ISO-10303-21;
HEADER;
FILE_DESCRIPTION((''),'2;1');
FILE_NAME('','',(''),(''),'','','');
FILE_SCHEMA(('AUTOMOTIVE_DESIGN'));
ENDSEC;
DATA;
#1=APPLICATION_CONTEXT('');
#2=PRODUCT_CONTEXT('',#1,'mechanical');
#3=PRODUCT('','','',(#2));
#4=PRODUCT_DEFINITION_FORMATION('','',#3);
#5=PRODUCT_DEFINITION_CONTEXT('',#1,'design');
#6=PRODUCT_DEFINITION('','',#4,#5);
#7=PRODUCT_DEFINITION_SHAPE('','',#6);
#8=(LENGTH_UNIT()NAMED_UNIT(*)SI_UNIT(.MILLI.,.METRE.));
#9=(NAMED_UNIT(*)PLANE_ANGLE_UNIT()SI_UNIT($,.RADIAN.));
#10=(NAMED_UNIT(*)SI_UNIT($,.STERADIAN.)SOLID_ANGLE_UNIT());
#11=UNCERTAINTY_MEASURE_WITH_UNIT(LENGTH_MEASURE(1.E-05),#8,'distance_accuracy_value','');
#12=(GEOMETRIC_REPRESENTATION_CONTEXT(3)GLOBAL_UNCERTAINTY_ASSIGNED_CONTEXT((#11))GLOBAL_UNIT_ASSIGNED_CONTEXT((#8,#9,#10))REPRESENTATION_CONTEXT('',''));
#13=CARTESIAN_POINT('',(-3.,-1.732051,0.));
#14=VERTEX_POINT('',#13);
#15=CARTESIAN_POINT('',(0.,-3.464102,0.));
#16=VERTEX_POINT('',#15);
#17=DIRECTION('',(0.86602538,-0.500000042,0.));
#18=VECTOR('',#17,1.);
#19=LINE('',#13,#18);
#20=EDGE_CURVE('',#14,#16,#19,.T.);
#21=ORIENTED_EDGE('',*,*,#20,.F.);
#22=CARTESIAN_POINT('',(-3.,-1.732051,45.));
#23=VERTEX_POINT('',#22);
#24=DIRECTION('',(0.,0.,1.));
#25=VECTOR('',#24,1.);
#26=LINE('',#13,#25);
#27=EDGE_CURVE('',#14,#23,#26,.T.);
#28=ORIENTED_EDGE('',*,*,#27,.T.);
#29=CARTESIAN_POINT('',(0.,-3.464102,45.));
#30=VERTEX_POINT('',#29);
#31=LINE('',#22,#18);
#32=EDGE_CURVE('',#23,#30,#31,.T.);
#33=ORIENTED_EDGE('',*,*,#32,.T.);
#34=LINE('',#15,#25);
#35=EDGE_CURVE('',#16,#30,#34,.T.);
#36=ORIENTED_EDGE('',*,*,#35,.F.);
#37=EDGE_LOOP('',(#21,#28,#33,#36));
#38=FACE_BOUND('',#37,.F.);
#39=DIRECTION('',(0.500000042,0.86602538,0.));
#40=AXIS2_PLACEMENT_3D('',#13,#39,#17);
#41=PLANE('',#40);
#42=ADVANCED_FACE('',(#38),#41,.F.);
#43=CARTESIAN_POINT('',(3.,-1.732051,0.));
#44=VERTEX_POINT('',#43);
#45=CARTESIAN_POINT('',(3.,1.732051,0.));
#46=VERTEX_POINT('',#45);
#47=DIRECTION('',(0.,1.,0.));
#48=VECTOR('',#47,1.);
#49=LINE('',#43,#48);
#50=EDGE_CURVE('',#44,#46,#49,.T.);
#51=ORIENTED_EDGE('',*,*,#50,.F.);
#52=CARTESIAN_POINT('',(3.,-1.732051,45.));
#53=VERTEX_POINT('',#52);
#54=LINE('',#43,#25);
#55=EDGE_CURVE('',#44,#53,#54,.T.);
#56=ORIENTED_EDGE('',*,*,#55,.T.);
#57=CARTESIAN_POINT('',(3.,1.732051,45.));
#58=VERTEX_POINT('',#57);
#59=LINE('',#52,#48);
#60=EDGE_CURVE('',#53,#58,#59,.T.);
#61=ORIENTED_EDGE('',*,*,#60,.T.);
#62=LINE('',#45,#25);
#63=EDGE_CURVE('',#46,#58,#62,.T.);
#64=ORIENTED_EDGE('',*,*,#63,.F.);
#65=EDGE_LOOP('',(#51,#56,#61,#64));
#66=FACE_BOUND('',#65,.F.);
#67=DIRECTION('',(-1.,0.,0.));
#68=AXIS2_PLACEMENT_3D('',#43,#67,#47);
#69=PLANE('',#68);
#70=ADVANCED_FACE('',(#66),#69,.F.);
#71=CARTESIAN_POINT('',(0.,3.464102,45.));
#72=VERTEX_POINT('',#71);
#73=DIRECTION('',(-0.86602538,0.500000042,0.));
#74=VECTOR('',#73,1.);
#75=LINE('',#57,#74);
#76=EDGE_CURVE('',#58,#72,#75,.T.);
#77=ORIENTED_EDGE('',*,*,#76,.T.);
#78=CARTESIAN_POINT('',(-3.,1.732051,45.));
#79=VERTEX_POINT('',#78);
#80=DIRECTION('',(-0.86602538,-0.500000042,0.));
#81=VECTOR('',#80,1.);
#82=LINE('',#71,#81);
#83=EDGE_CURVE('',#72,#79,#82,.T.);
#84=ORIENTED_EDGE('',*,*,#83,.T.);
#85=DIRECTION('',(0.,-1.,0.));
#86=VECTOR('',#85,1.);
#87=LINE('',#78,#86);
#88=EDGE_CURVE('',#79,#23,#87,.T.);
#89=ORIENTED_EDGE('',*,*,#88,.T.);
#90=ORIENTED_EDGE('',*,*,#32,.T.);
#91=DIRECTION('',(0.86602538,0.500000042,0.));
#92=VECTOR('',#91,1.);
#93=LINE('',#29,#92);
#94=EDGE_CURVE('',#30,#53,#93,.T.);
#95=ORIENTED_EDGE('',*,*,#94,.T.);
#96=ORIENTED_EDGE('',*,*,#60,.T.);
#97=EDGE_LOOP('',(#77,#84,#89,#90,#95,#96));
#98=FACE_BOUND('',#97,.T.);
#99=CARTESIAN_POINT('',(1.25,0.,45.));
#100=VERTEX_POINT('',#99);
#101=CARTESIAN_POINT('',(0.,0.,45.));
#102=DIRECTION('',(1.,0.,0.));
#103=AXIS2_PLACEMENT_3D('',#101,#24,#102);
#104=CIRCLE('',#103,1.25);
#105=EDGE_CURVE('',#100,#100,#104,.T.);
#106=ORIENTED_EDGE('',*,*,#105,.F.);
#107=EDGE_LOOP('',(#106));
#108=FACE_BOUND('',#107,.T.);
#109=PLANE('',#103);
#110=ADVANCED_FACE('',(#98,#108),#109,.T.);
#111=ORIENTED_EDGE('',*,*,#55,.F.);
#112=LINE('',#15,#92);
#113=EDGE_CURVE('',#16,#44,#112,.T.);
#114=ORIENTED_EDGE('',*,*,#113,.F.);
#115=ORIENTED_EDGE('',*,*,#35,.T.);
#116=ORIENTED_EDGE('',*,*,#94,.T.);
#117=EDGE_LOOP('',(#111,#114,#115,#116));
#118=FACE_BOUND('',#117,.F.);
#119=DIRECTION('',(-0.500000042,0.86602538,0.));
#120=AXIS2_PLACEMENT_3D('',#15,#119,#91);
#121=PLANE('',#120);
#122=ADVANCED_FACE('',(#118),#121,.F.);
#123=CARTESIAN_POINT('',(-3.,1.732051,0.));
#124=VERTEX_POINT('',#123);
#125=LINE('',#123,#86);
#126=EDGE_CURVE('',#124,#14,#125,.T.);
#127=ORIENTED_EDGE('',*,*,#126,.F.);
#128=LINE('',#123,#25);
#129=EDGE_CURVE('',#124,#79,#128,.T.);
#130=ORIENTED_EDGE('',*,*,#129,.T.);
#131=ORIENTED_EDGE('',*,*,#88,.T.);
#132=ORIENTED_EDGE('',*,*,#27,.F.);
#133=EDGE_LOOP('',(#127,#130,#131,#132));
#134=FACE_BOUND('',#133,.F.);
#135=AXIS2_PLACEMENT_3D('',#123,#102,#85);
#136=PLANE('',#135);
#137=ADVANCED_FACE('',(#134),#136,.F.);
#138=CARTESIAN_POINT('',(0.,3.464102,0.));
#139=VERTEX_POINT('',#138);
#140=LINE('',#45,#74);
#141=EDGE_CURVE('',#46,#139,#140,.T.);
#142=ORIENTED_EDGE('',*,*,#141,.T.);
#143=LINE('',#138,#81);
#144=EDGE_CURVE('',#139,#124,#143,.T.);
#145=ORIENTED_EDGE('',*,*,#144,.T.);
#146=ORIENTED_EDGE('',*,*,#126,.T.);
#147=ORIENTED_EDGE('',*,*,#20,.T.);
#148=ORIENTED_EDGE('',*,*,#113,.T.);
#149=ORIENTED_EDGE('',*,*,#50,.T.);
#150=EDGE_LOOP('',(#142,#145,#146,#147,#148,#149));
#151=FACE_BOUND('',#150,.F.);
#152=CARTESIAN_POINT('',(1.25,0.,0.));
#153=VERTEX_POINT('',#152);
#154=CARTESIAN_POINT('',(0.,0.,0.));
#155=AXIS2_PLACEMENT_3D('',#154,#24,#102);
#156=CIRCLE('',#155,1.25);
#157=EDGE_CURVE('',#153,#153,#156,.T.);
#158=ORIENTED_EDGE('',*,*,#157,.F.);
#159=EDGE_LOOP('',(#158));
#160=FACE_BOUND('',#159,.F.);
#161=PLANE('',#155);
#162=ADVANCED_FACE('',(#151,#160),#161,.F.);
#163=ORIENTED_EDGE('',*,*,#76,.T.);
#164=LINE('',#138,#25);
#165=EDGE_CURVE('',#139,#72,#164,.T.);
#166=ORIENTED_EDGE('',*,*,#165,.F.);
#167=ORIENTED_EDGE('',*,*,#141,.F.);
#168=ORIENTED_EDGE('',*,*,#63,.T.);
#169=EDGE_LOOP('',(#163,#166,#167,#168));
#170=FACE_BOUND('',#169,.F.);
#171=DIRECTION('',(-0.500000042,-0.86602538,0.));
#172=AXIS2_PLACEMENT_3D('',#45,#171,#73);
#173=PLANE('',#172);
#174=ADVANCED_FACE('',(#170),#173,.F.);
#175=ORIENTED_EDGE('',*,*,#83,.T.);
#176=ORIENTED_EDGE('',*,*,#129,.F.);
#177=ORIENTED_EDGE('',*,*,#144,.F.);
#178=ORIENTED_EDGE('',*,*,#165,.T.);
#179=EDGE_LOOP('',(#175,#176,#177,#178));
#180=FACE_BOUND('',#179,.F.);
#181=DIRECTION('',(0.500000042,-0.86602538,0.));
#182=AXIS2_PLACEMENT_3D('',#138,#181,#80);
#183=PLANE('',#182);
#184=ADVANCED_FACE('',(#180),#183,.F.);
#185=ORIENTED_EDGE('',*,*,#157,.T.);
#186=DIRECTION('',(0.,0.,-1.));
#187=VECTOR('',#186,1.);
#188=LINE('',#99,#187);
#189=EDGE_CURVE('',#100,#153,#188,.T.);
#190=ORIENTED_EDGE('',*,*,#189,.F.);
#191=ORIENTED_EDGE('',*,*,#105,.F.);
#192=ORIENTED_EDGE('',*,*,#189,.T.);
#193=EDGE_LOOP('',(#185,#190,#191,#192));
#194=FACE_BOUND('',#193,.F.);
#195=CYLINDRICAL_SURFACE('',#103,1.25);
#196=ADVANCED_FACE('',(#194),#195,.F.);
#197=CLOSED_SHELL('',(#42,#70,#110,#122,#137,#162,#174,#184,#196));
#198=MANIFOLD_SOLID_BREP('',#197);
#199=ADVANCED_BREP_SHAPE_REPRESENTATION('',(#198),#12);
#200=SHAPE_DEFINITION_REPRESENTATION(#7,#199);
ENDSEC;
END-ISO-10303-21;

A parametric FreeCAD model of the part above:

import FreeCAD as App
import Part
import Sketcher
Q = App.Units.Quantity

doc = App.newDocument("Part")
body = doc.addObject("PartDesign::Body", "Body")

sketch1 = body.newObject("Sketcher::SketchObject", "Sketch")
sketch1.AttachmentSupport = (doc.getObject("XY_Plane"), [""])
sketch1.MapMode = "FlatFace"
sketch1.addGeometry([
    Part.LineSegment(App.Vector(-3, -1.732051, 0), App.Vector(0, -3.464102, 0)),
    Part.LineSegment(App.Vector(0, -3.464102, 0), App.Vector(3, -1.732051, 0)),
    Part.LineSegment(App.Vector(3, -1.732051, 0), App.Vector(3, 1.732051, 0)),
    Part.LineSegment(App.Vector(3, 1.732051, 0), App.Vector(0, 3.464102, 0)),
    Part.LineSegment(App.Vector(0, 3.464102, 0), App.Vector(-3, 1.732051, 0)),
    Part.LineSegment(App.Vector(-3, 1.732051, 0), App.Vector(-3, -1.732051, 0)),
], False)
sketch1.addConstraint([
    Sketcher.Constraint("Coincident", 0, 2, 1, 1),
    Sketcher.Constraint("Coincident", 1, 2, 2, 1),
    Sketcher.Constraint("Coincident", 2, 2, 3, 1),
    Sketcher.Constraint("Coincident", 3, 2, 4, 1),
    Sketcher.Constraint("Coincident", 4, 2, 5, 1),
    Sketcher.Constraint("Coincident", 5, 2, 0, 1),
    Sketcher.Constraint("Vertical", 2),
    Sketcher.Constraint("Vertical", 5),
    Sketcher.Constraint("Symmetric", 0, 2, 3, 2, -1, 1),
    Sketcher.Constraint("Symmetric", 1, 2, 4, 2, -1, 1),
    Sketcher.Constraint("PointOnObject", 0, 2, -2),
    Sketcher.Constraint("Parallel", 0, 3),
    Sketcher.Constraint("Horizontal", 2, 2, 4, 2),
    Sketcher.Constraint("Angle", 0, Q("-30.000003 deg")),
    Sketcher.Constraint("DistanceX", -1, 1, 1, 2, 3.0),
    Sketcher.Constraint("DistanceY", 2, 1, 2, 2, 3.464102),
])
pad1 = body.newObject("PartDesign::Pad", "Pad")
pad1.Profile = sketch1
pad1.Length = 45

sketch2 = body.newObject("Sketcher::SketchObject", "Sketch001")
sketch2.AttachmentSupport = (doc.getObject("XY_Plane"), [""])
sketch2.MapMode = "FlatFace"
sketch2.AttachmentOffset = App.Placement(App.Vector(0, 0, 45), App.Rotation())
sketch2.addGeometry(Part.Circle(App.Vector(0, 0, 0), App.Vector(0, 0, 1), 1.25), False)
sketch2.addConstraint([
    Sketcher.Constraint("Coincident", 0, 3, -1, 1),
    Sketcher.Constraint("Diameter", 0, 2.5),
])
pocket1 = body.newObject("PartDesign::Pocket", "Pocket")
pocket1.Profile = sketch2
pocket1.Type = "ThroughAll"

doc.recompute()
